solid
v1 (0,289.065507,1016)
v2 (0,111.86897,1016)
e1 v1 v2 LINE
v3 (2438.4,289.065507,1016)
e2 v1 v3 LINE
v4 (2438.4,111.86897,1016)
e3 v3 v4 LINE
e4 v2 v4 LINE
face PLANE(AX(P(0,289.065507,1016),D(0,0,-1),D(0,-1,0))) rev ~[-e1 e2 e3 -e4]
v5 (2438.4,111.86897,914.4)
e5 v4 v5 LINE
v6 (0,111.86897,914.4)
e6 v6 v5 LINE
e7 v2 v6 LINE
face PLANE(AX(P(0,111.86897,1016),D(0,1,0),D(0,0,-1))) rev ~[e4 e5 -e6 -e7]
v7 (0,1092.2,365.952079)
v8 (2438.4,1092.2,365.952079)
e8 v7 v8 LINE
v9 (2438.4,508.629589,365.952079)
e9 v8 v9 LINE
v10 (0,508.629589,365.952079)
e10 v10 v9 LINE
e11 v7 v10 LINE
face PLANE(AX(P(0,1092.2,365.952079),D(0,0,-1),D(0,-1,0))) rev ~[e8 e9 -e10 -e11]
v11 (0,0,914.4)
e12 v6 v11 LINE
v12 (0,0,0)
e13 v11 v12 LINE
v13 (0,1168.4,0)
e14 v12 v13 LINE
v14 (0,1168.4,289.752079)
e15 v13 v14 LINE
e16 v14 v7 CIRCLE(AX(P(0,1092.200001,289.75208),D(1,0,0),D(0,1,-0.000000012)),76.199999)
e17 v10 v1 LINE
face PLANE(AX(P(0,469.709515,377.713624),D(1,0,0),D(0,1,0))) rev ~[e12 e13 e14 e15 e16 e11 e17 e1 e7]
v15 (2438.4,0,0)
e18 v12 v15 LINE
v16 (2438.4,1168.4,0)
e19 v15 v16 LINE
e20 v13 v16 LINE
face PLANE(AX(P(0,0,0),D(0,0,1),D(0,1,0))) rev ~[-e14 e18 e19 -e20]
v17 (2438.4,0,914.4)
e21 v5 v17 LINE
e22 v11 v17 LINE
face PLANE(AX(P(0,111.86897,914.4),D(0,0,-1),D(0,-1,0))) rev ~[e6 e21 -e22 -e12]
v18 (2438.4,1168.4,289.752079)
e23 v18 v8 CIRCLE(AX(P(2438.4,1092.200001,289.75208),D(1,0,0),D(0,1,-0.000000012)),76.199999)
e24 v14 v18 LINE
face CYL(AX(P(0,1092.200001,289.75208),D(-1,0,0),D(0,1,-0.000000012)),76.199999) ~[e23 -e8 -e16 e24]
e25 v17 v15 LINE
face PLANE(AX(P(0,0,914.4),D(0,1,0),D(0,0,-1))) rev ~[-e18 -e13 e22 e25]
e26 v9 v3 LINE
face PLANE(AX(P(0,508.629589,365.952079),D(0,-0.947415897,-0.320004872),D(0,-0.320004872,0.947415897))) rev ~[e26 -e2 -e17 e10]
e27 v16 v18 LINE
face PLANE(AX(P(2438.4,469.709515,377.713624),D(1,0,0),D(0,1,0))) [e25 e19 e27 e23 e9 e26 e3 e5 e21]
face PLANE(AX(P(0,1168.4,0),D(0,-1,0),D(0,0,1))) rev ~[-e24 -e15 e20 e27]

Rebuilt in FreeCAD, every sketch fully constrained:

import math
import FreeCAD as App
import Part
import Sketcher
from FreeCAD import Vector
Q = App.Units.Quantity

doc = App.newDocument("Part")
params = doc.addObject("Spreadsheet::Sheet", "Params")
for row, (alias, value) in enumerate([
    ("sketch1_radius", "3 in"),
    ("sketch1_width", "46 in"),
    ("sketch1_height", "36 in"),
    ("sketch1_height2", "4 in"),
    ("pad1_length", "96 in"),
], start=1):
    params.set(f"A{row}", alias)
    params.set(f"B{row}", "=" + value)
    params.setAlias(f"B{row}", alias)

body = doc.addObject("PartDesign::Body", "Body")

# Sketch on YZ plane
sketch1 = doc.addObject("Sketcher::SketchObject", "Sketch")
body.addObject(sketch1)
sketch1.AttachmentSupport = (doc.YZ_Plane, [""])
sketch1.MapMode = "FlatFace"
sketch1.addGeometry(Part.LineSegment(Vector(112, 914, 0), Vector(0, 914, 0)), False)
sketch1.addGeometry(Part.LineSegment(Vector(0, 914, 0), Vector(0, 0, 0)), False)
sketch1.addGeometry(Part.LineSegment(Vector(0, 0, 0), Vector(1168, 0, 0)), False)
sketch1.addGeometry(Part.LineSegment(Vector(1168, 0, 0), Vector(1168, 290, 0)), False)
sketch1.addGeometry(Part.ArcOfCircle(Part.Circle(Vector(1092, 290, 0), Vector(0, 0, 1), 76), math.radians(0), math.radians(90)), False)
sketch1.addGeometry(Part.LineSegment(Vector(1092, 366, 0), Vector(509, 366, 0)), False)
sketch1.addGeometry(Part.LineSegment(Vector(509, 366, 0), Vector(289, 1016, 0)), False)
sketch1.addGeometry(Part.LineSegment(Vector(289, 1016, 0), Vector(112, 1016, 0)), False)
sketch1.addGeometry(Part.LineSegment(Vector(112, 1016, 0), Vector(112, 914, 0)), False)
sketch1.addConstraint(Sketcher.Constraint("Coincident", 0, 2, 1, 1))
sketch1.addConstraint(Sketcher.Constraint("Coincident", 1, 2, 2, 1))
sketch1.addConstraint(Sketcher.Constraint("Coincident", 2, 2, 3, 1))
sketch1.addConstraint(Sketcher.Constraint("Tangent", 3, 2, 4, 1))
sketch1.addConstraint(Sketcher.Constraint("Tangent", 4, 2, 5, 1))
sketch1.addConstraint(Sketcher.Constraint("Coincident", 5, 2, 6, 1))
sketch1.addConstraint(Sketcher.Constraint("Coincident", 6, 2, 7, 1))
sketch1.addConstraint(Sketcher.Constraint("Coincident", 7, 2, 8, 1))
sketch1.addConstraint(Sketcher.Constraint("Coincident", 8, 2, 0, 1))
sketch1.addConstraint(Sketcher.Constraint("Horizontal", 0))
sketch1.addConstraint(Sketcher.Constraint("Vertical", 1))
sketch1.addConstraint(Sketcher.Constraint("Horizontal", 2))
sketch1.addConstraint(Sketcher.Constraint("Vertical", 3))
sketch1.addConstraint(Sketcher.Constraint("Horizontal", 5))
sketch1.addConstraint(Sketcher.Constraint("Horizontal", 7))
sketch1.addConstraint(Sketcher.Constraint("Vertical", 8))
sketch1.addConstraint(Sketcher.Constraint("Coincident", 1, 2, -1, 1))
sketch1.addConstraint(Sketcher.Constraint("Radius", 4, Q("3 in")))
sketch1.addConstraint(Sketcher.Constraint("DistanceX", 2, 1, 2, 2, Q("46 in")))
sketch1.addConstraint(Sketcher.Constraint("DistanceY", 1, 2, 1, 1, Q("36 in")))
sketch1.addConstraint(Sketcher.Constraint("DistanceY", 8, 2, 8, 1, Q("4 in")))
sketch1.addConstraint(Sketcher.Constraint("DistanceX", 0, 2, 0, 1, 111.86897))
sketch1.addConstraint(Sketcher.Constraint("DistanceX", 5, 2, 5, 1, 583.570411))
sketch1.addConstraint(Sketcher.Constraint("DistanceY", 3, 1, 3, 2, 289.752079))
sketch1.addConstraint(Sketcher.Constraint("Distance", 6, 686.12731))
sketch1.setExpression("Constraints[17]", "Params.sketch1_radius")
sketch1.setExpression("Constraints[18]", "Params.sketch1_width")
sketch1.setExpression("Constraints[19]", "Params.sketch1_height")
sketch1.setExpression("Constraints[20]", "Params.sketch1_height2")
pad1 = doc.addObject("PartDesign::Pad", "Pad")
body.addObject(pad1)
pad1.Profile = sketch1
pad1.setExpression("Length", "Params.pad1_length")

doc.recompute()
